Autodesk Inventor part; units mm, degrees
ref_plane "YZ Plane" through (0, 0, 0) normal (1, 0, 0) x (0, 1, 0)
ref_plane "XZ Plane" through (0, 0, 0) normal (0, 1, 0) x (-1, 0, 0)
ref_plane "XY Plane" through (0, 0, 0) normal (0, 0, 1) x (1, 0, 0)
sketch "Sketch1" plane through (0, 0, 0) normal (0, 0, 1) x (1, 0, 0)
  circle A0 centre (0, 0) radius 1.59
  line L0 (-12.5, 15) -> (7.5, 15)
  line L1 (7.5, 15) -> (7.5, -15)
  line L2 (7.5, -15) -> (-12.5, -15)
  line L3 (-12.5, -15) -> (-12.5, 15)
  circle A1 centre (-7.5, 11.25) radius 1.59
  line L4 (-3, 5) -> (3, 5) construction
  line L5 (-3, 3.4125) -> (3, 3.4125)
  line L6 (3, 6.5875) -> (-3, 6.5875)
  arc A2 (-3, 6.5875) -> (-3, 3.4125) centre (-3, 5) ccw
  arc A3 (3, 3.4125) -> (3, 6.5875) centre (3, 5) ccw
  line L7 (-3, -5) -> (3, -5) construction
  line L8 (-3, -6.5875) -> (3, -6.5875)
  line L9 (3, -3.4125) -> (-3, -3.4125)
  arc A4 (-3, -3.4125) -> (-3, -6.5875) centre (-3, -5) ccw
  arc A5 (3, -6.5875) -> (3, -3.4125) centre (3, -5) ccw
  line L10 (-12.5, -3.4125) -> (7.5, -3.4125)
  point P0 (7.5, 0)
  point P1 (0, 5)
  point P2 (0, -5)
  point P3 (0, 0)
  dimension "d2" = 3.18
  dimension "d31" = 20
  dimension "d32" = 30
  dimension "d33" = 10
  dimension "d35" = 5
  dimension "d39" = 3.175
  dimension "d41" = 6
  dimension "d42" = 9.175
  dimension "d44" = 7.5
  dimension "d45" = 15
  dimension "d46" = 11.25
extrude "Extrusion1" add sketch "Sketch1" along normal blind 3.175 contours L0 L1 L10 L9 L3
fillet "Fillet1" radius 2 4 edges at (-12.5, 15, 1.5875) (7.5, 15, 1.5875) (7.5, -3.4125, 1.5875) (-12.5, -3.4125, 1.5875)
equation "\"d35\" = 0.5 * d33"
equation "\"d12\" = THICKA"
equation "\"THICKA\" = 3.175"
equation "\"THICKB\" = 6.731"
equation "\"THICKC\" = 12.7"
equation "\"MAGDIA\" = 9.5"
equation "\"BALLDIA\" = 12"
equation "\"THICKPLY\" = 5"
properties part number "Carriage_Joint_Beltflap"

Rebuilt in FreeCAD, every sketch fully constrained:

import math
import FreeCAD as App
import Part
import Sketcher

V = App.Vector


def edges_at(feature, points):
    """Names of the edges that pass closest to the given points."""
    edges = feature.Shape.Edges
    near = lambda p: min(range(len(edges)), key=lambda i: edges[i].distToShape(Part.Vertex(*p))[0])
    return sorted({f"Edge{near(p) + 1}" for p in points})

doc = App.newDocument("Part")
body = doc.addObject("PartDesign::Body", "Body")

# Sketch on XY plane
sketch1 = doc.addObject("Sketcher::SketchObject", "Sketch")
body.addObject(sketch1)
sketch1.AttachmentSupport = (doc.XY_Plane, [""])
sketch1.MapMode = "FlatFace"
sketch1.addGeometry(Part.LineSegment(V(7.5, 15, 0), V(-12.5, 15, 0)), False)
sketch1.addGeometry(Part.LineSegment(V(-12.5, 15, 0), V(-12.5, -3.4125, 0)), False)
sketch1.addGeometry(Part.LineSegment(V(-12.5, -3.4125, 0), V(7.5, -3.4125, 0)), False)
sketch1.addGeometry(Part.LineSegment(V(7.5, -3.4125, 0), V(7.5, 15, 0)), False)
sketch1.addGeometry(Part.Circle(V(-7.5, 11.25, 0), V(0, 0, 1), 1.59), False)
sketch1.addGeometry(Part.Circle(V(0, 0, 0), V(0, 0, 1), 1.59), False)
sketch1.addGeometry(Part.LineSegment(V(3, 3.4125, 0), V(-3, 3.4125, 0)), False)
sketch1.addGeometry(Part.ArcOfCircle(Part.Circle(V(-3, 5, 0), V(0, 0, 1), 1.5875), math.radians(90), math.radians(270)), False)
sketch1.addGeometry(Part.LineSegment(V(-3, 6.5875, 0), V(3, 6.5875, 0)), False)
sketch1.addGeometry(Part.ArcOfCircle(Part.Circle(V(3, 5, 0), V(0, 0, 1), 1.5875), math.radians(-90), math.radians(90)), False)
sketch1.addConstraint(Sketcher.Constraint("Coincident", 0, 2, 1, 1))
sketch1.addConstraint(Sketcher.Constraint("Coincident", 1, 2, 2, 1))
sketch1.addConstraint(Sketcher.Constraint("Coincident", 2, 2, 3, 1))
sketch1.addConstraint(Sketcher.Constraint("Coincident", 3, 2, 0, 1))
sketch1.addConstraint(Sketcher.Constraint("Tangent", 6, 2, 7, 2))
sketch1.addConstraint(Sketcher.Constraint("Tangent", 7, 1, 8, 1))
sketch1.addConstraint(Sketcher.Constraint("Tangent", 8, 2, 9, 2))
sketch1.addConstraint(Sketcher.Constraint("Tangent", 9, 1, 6, 1))
sketch1.addConstraint(Sketcher.Constraint("Horizontal", 0))
sketch1.addConstraint(Sketcher.Constraint("Vertical", 1))
sketch1.addConstraint(Sketcher.Constraint("Horizontal", 2))
sketch1.addConstraint(Sketcher.Constraint("Vertical", 3))
sketch1.addConstraint(Sketcher.Constraint("Horizontal", 6))
sketch1.addConstraint(Sketcher.Constraint("Horizontal", 8))
sketch1.addConstraint(Sketcher.Constraint("Coincident", 5, 3, -1, 1))
sketch1.addConstraint(Sketcher.Constraint("Equal", 4, 5))
sketch1.addConstraint(Sketcher.Constraint("Diameter", 4, 3.18))
sketch1.addConstraint(Sketcher.Constraint("DistanceX", 0, 2, 0, 1, 20.0))
sketch1.addConstraint(Sketcher.Constraint("DistanceX", 6, 2, 6, 1, 6.0))
sketch1.addConstraint(Sketcher.Constraint("DistanceY", -1, 1, 7, 3, 5.0))
sketch1.addConstraint(Sketcher.Constraint("DistanceY", -1, 1, 0, 2, 15.0))
sketch1.addConstraint(Sketcher.Constraint("DistanceX", 0, 2, 4, 3, 5.0))
sketch1.addConstraint(Sketcher.Constraint("DistanceX", 4, 3, -1, 1, 7.5))
sketch1.addConstraint(Sketcher.Constraint("Radius", 7, 1.5875))
sketch1.addConstraint(Sketcher.Constraint("DistanceY", -1, 1, 4, 3, 11.25))
sketch1.addConstraint(Sketcher.Constraint("DistanceX", 7, 3, -1, 1, 3.0))
sketch1.addConstraint(Sketcher.Constraint("DistanceY", 1, 2, 1, 1, 18.4125))
pad1 = doc.addObject("PartDesign::Pad", "Pad")
body.addObject(pad1)
pad1.Profile = sketch1
pad1.Length = 3.175
doc.recompute()

fillet = doc.addObject("PartDesign::Fillet", "Fillet")
body.addObject(fillet)
fillet.Base = (pad1, edges_at(pad1, [
    (-12.5, 15, 1.587),
    (7.5, 15, 1.587),
    (7.5, -3.413, 1.587),
    (-12.5, -3.413, 1.587),
]))
fillet.Radius = 2

doc.recompute()
